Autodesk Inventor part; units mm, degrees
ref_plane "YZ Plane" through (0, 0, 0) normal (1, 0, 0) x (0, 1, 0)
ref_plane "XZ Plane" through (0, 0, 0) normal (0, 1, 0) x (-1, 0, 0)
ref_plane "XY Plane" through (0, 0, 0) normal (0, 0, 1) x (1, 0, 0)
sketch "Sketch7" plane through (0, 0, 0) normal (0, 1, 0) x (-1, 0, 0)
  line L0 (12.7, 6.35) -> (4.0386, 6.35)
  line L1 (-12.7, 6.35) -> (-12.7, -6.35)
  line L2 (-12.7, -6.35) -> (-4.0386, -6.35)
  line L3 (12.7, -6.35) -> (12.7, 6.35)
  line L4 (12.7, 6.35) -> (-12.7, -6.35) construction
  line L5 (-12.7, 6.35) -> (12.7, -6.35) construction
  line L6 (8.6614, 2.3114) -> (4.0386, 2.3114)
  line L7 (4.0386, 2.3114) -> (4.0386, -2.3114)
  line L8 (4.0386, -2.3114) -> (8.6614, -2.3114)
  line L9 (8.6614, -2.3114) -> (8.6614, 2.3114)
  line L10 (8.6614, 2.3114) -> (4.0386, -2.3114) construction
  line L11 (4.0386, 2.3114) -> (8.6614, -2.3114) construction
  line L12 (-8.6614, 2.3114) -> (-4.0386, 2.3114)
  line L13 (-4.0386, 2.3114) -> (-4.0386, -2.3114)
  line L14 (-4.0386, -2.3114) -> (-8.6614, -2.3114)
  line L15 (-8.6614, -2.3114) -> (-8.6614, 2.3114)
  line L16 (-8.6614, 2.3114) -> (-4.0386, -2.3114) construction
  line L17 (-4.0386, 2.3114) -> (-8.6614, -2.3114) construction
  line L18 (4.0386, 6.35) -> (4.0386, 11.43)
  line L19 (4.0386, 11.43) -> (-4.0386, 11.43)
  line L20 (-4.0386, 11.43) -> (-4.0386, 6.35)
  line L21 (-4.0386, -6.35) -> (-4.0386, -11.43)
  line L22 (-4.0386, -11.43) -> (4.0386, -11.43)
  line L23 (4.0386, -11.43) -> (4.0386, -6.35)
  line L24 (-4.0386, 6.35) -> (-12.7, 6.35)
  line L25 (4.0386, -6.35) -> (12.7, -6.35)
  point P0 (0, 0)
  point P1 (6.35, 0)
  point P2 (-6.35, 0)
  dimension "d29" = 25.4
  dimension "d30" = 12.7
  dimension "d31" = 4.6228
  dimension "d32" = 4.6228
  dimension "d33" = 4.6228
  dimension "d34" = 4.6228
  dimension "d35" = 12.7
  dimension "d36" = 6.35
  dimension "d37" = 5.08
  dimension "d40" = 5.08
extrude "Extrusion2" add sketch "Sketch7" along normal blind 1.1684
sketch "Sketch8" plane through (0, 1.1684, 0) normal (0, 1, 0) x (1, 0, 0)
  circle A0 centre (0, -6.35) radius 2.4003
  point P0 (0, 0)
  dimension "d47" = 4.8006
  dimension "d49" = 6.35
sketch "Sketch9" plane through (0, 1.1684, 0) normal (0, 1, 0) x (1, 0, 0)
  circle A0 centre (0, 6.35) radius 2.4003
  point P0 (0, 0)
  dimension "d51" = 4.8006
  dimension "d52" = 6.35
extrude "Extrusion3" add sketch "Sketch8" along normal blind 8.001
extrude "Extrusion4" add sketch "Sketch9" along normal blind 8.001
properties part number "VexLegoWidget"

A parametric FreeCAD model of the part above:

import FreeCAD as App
import Part
import Sketcher
from FreeCAD import Vector
Q = App.Units.Quantity


def add_polygon(sketch, points):
    """Adds a closed chain of lines whose ends are joined by coincident constraints."""
    first, n = sketch.GeometryCount, len(points)
    for a, b in zip(points, points[1:] + points[:1]):
        sketch.addGeometry(Part.LineSegment(App.Vector(*a, 0), App.Vector(*b, 0)), False)
    for i in range(n):
        sketch.addConstraint(Sketcher.Constraint("Coincident", first + i, 2, first + (i + 1) % n, 1))

doc = App.newDocument("Part")
body = doc.addObject("PartDesign::Body", "Body")

# Sketch on XZ plane
sketch1 = body.newObject("Sketcher::SketchObject", "Sketch")
sketch1.AttachmentSupport = (doc.getObject("XZ_Plane"), [""])
sketch1.MapMode = "FlatFace"
add_polygon(sketch1, [(-12.7, -6.3), (-12.7, 6.3), (-4, 6.3), (-4, 11.4), (4, 11.4), (4, 6.3), (12.7, 6.3), (12.7, -6.3), (4, -6.3), (4, -11.4), (-4, -11.4), (-4, -6.3)])  # lines 0-11
add_polygon(sketch1, [(8.7, -2.3), (8.7, 2.3), (4, 2.3), (4, -2.3)])  # lines 12-15
add_polygon(sketch1, [(-4, 2.3), (-8.7, 2.3), (-8.7, -2.3), (-4, -2.3)])  # lines 16-19
sketch1.addConstraint([
    Sketcher.Constraint("Vertical", 0),
    Sketcher.Constraint("Horizontal", 1),
    Sketcher.Constraint("Vertical", 2),
    Sketcher.Constraint("Horizontal", 3),
    Sketcher.Constraint("Vertical", 4),
    Sketcher.Constraint("Horizontal", 5),
    Sketcher.Constraint("Vertical", 6),
    Sketcher.Constraint("Horizontal", 7),
    Sketcher.Constraint("Vertical", 8),
    Sketcher.Constraint("Horizontal", 9),
    Sketcher.Constraint("Vertical", 10),
    Sketcher.Constraint("Horizontal", 11),
    Sketcher.Constraint("Vertical", 12),
    Sketcher.Constraint("Horizontal", 13),
    Sketcher.Constraint("Vertical", 14),
    Sketcher.Constraint("Horizontal", 15),
    Sketcher.Constraint("Horizontal", 16),
    Sketcher.Constraint("Vertical", 17),
    Sketcher.Constraint("Horizontal", 18),
    Sketcher.Constraint("Vertical", 19),
    Sketcher.Constraint("Symmetric", 0, 2, 6, 2, -1, 1),
    Sketcher.Constraint("Symmetric", 2, 2, 8, 2, -1, 1),
    Sketcher.Constraint("Symmetric", 4, 2, 10, 2, -1, 1),
    Sketcher.Constraint("Symmetric", 15, 2, 16, 2, -1, 1),
    Sketcher.Constraint("Symmetric", 13, 2, 18, 2, -1, 1),
    Sketcher.Constraint("Symmetric", 1, 2, 4, 2, -2),
    Sketcher.Constraint("Horizontal", 13, 2, 16, 2),
    Sketcher.Constraint("Vertical", 8, 2, 13, 2),
    Sketcher.Constraint("Equal", 18, 12),
    Sketcher.Constraint("DistanceY", 0, 1, 0, 2, Q("0.5 in")),
    Sketcher.Constraint("DistanceY", 2, 1, 2, 2, Q("0.2 in")),
    Sketcher.Constraint("DistanceX", 0, 2, 5, 2, Q("1 in")),
    Sketcher.Constraint("DistanceX", 13, 2, 13, 1, Q("0.182 in")),
    Sketcher.Constraint("DistanceX", 1, 1, 1, 2, Q("0.341 in")),
])
pad1 = body.newObject("PartDesign::Pad", "Pad")
pad1.Profile = sketch1
pad1.Length = Q("0.046 in")
pad1.Reversed = True

# Sketch on XZ plane
sketch2 = body.newObject("Sketcher::SketchObject", "Sketch001")
sketch2.AttachmentSupport = (doc.getObject("XZ_Plane"), [""])
sketch2.MapMode = "FlatFace"
sketch2.AttachmentOffset = App.Placement(Vector(0, 0, -0.046 * 25.4), App.Rotation())
sketch2.addGeometry(Part.Circle(Vector(0, 6.3, 0), Vector(0, 0, 1), 2.4), False)
sketch2.addConstraint([
    Sketcher.Constraint("PointOnObject", 0, 3, -2),
    Sketcher.Constraint("Diameter", 0, Q("0.189 in")),
    Sketcher.Constraint("DistanceY", -1, 1, 0, 3, Q("0.25 in")),
])
pad2 = body.newObject("PartDesign::Pad", "Pad001")
pad2.Profile = sketch2
pad2.Length = Q("0.315 in")
pad2.Reversed = True

# Sketch on XZ plane
sketch3 = body.newObject("Sketcher::SketchObject", "Sketch002")
sketch3.AttachmentSupport = (doc.getObject("XZ_Plane"), [""])
sketch3.MapMode = "FlatFace"
sketch3.AttachmentOffset = App.Placement(Vector(0, 0, -0.046 * 25.4), App.Rotation())
sketch3.addGeometry(Part.Circle(Vector(0, -6.3, 0), Vector(0, 0, 1), 2.4), False)
sketch3.addConstraint([
    Sketcher.Constraint("PointOnObject", 0, 3, -2),
    Sketcher.Constraint("Diameter", 0, Q("0.189 in")),
    Sketcher.Constraint("DistanceY", 0, 3, -1, 1, Q("0.25 in")),
])
pad3 = body.newObject("PartDesign::Pad", "Pad002")
pad3.Profile = sketch3
pad3.Length = Q("0.315 in")
pad3.Reversed = True

doc.recompute()
